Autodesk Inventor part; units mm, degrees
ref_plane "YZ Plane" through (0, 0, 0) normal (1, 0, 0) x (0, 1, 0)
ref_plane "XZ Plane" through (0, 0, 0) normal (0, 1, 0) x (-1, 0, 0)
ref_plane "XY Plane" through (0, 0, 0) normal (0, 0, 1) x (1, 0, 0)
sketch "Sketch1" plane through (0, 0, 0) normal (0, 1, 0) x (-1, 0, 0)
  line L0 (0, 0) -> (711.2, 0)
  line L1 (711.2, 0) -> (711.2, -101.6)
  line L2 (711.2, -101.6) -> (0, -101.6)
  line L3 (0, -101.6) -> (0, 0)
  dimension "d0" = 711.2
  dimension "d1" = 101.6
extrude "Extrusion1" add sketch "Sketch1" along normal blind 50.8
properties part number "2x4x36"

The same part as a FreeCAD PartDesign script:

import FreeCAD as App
import Part
import Sketcher

V = App.Vector
Q = App.Units.Quantity


def add_polygon(sketch, points):
    """Adds a closed chain of lines whose ends are joined by coincident constraints."""
    first, n = sketch.GeometryCount, len(points)
    for a, b in zip(points, points[1:] + points[:1]):
        sketch.addGeometry(Part.LineSegment(App.Vector(*a, 0), App.Vector(*b, 0)), False)
    for i in range(n):
        sketch.addConstraint(Sketcher.Constraint("Coincident", first + i, 2, first + (i + 1) % n, 1))

doc = App.newDocument("Part")
body = doc.addObject("PartDesign::Body", "Body")

sketch1 = body.newObject("Sketcher::SketchObject", "Sketch")
sketch1.AttachmentSupport = (doc.getObject("XZ_Plane"), [""])
sketch1.MapMode = "FlatFace"
add_polygon(sketch1, [(-711, 0), (0, 0), (0, -102), (-711, -102)])
sketch1.addConstraint(Sketcher.Constraint("Horizontal", 0))
sketch1.addConstraint(Sketcher.Constraint("Vertical", 1))
sketch1.addConstraint(Sketcher.Constraint("Horizontal", 2))
sketch1.addConstraint(Sketcher.Constraint("Vertical", 3))
sketch1.addConstraint(Sketcher.Constraint("Coincident", 0, 2, -1, 1))
sketch1.addConstraint(Sketcher.Constraint("DistanceX", 0, 1, 0, 2, Q("28 in")))
sketch1.addConstraint(Sketcher.Constraint("DistanceY", 1, 2, 1, 1, Q("4 in")))
pad1 = body.newObject("PartDesign::Pad", "Pad")
pad1.Profile = sketch1
pad1.Length = Q("2 in")
pad1.Reversed = True

doc.recompute()
